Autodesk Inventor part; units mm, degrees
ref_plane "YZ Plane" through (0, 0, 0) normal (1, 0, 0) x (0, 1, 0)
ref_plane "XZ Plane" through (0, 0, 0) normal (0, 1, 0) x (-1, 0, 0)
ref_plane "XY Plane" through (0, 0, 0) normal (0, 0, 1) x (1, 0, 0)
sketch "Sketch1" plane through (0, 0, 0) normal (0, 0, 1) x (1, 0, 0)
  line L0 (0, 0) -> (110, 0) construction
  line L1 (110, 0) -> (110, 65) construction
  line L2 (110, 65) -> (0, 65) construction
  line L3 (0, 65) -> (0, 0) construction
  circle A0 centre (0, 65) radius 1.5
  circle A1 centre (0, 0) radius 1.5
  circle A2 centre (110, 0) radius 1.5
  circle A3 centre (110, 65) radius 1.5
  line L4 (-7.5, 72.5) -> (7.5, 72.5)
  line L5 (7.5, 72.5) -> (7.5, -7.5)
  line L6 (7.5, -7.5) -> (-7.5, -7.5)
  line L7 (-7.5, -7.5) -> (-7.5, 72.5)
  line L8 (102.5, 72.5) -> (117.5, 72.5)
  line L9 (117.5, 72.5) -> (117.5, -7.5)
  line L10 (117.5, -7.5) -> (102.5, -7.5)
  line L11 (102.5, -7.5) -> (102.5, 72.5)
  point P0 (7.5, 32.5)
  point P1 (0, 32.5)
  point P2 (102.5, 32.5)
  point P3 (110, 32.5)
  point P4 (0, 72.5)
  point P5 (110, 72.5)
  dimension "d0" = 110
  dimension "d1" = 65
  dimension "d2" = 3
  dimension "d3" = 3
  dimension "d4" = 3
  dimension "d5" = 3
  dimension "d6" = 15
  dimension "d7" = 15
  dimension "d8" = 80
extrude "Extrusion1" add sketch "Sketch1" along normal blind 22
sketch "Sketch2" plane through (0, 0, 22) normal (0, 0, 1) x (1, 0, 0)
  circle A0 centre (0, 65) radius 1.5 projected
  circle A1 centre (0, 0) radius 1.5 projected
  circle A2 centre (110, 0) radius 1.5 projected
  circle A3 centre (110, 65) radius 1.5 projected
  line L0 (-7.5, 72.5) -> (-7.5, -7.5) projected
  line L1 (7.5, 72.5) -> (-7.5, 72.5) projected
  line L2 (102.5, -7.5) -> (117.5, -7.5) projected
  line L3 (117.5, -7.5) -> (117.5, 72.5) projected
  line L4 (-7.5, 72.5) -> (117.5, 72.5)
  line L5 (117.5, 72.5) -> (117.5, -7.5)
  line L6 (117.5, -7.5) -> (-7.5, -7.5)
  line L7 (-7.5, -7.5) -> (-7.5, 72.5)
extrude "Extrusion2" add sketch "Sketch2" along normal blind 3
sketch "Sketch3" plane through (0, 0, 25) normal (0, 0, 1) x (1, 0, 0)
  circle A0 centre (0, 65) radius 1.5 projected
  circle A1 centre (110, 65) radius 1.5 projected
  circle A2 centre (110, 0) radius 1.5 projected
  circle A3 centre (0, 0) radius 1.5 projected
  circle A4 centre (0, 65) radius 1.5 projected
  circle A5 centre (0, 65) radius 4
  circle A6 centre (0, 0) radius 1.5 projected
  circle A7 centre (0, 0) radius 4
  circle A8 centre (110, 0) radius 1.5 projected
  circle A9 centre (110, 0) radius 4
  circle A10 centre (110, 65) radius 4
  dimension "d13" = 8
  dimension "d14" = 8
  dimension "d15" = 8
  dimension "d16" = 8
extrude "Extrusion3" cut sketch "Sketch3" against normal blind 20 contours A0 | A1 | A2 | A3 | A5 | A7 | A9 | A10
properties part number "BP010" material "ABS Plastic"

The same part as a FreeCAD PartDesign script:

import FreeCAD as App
import Part
import Sketcher

V = App.Vector


def add_polygon(sketch, points):
    """Adds a closed chain of lines whose ends are joined by coincident constraints."""
    first, n = sketch.GeometryCount, len(points)
    for a, b in zip(points, points[1:] + points[:1]):
        sketch.addGeometry(Part.LineSegment(App.Vector(*a, 0), App.Vector(*b, 0)), False)
    for i in range(n):
        sketch.addConstraint(Sketcher.Constraint("Coincident", first + i, 2, first + (i + 1) % n, 1))

doc = App.newDocument("Part")
body = doc.addObject("PartDesign::Body", "Body")
body.AllowCompound = True

# Sketch on XY plane
sketch1 = doc.addObject("Sketcher::SketchObject", "Sketch")
body.addObject(sketch1)
sketch1.AttachmentSupport = (doc.XY_Plane, [""])
sketch1.MapMode = "FlatFace"
add_polygon(sketch1, [(7.5, 72.5), (-7.5, 72.5), (-7.5, -7.5), (7.5, -7.5)])  # lines 0-3
sketch1.addGeometry(Part.Circle(V(0, 0, 0), V(0, 0, 1), 1.5), False)  # 4
sketch1.addGeometry(Part.Circle(V(0, 65, 0), V(0, 0, 1), 1.5), False)  # 5
add_polygon(sketch1, [(117.5, 72.5), (102.5, 72.5), (102.5, -7.5), (117.5, -7.5)])  # lines 6-9
sketch1.addGeometry(Part.Circle(V(110, 0, 0), V(0, 0, 1), 1.5), False)  # 10
sketch1.addGeometry(Part.Circle(V(110, 65, 0), V(0, 0, 1), 1.5), False)  # 11
sketch1.addConstraint(Sketcher.Constraint("Horizontal", 0))
sketch1.addConstraint(Sketcher.Constraint("Vertical", 1))
sketch1.addConstraint(Sketcher.Constraint("Horizontal", 2))
sketch1.addConstraint(Sketcher.Constraint("Vertical", 3))
sketch1.addConstraint(Sketcher.Constraint("Horizontal", 6))
sketch1.addConstraint(Sketcher.Constraint("Vertical", 7))
sketch1.addConstraint(Sketcher.Constraint("Horizontal", 8))
sketch1.addConstraint(Sketcher.Constraint("Vertical", 9))
sketch1.addConstraint(Sketcher.Constraint("Coincident", 4, 3, -1, 1))
sketch1.addConstraint(Sketcher.Constraint("Equal", 4, 5))
sketch1.addConstraint(Sketcher.Constraint("Equal", 5, 10))
sketch1.addConstraint(Sketcher.Constraint("Equal", 10, 11))
sketch1.addConstraint(Sketcher.Constraint("PointOnObject", 5, 3, -2))
sketch1.addConstraint(Sketcher.Constraint("PointOnObject", 10, 3, -1))
sketch1.addConstraint(Sketcher.Constraint("Horizontal", 5, 3, 11, 3))
sketch1.addConstraint(Sketcher.Constraint("Horizontal", 3, 2, 6, 2))
sketch1.addConstraint(Sketcher.Constraint("Horizontal", 2, 2, 7, 2))
sketch1.addConstraint(Sketcher.Constraint("Vertical", 10, 3, 11, 3))
sketch1.addConstraint(Sketcher.Constraint("Equal", 2, 6))
sketch1.addConstraint(Sketcher.Constraint("Diameter", 4, 3.0))
sketch1.addConstraint(Sketcher.Constraint("DistanceX", 0, 2, 0, 1, 15.0))
sketch1.addConstraint(Sketcher.Constraint("DistanceY", 1, 2, 1, 1, 80.0))
sketch1.addConstraint(Sketcher.Constraint("DistanceY", -1, 1, 5, 3, 65.0))
sketch1.addConstraint(Sketcher.Constraint("DistanceX", -1, 1, 10, 3, 110.0))
sketch1.addConstraint(Sketcher.Constraint("DistanceX", 0, 2, 6, 2, 110.0))
sketch1.addConstraint(Sketcher.Constraint("DistanceX", 0, 2, -1, 1, 7.5))
sketch1.addConstraint(Sketcher.Constraint("DistanceY", -1, 1, 0, 2, 72.5))
pad1 = doc.addObject("PartDesign::Pad", "Pad")
body.addObject(pad1)
pad1.Profile = sketch1
pad1.Length = 22

# Sketch on XY plane
sketch2 = doc.addObject("Sketcher::SketchObject", "Sketch001")
body.addObject(sketch2)
sketch2.AttachmentSupport = (doc.XY_Plane, [""])
sketch2.MapMode = "FlatFace"
sketch2.AttachmentOffset = App.Placement(V(0, 0, 22), App.Rotation())
add_polygon(sketch2, [(117.5, 72.5), (-7.5, 72.5), (-7.5, -7.5), (117.5, -7.5)])  # lines 0-3
sketch2.addGeometry(Part.Circle(V(0, 0, 0), V(0, 0, 1), 1.5), False)  # 4
sketch2.addGeometry(Part.Circle(V(110, 0, 0), V(0, 0, 1), 1.5), False)  # 5
sketch2.addGeometry(Part.Circle(V(0, 65, 0), V(0, 0, 1), 1.5), False)  # 6
sketch2.addGeometry(Part.Circle(V(110, 65, 0), V(0, 0, 1), 1.5), False)  # 7
sketch2.addConstraint(Sketcher.Constraint("Horizontal", 0))
sketch2.addConstraint(Sketcher.Constraint("Vertical", 1))
sketch2.addConstraint(Sketcher.Constraint("Horizontal", 2))
sketch2.addConstraint(Sketcher.Constraint("Vertical", 3))
sketch2.addConstraint(Sketcher.Constraint("Coincident", 4, 3, -1, 1))
sketch2.addConstraint(Sketcher.Constraint("Equal", 4, 5))
sketch2.addConstraint(Sketcher.Constraint("Equal", 5, 6))
sketch2.addConstraint(Sketcher.Constraint("Equal", 6, 7))
sketch2.addConstraint(Sketcher.Constraint("PointOnObject", 5, 3, -1))
sketch2.addConstraint(Sketcher.Constraint("PointOnObject", 6, 3, -2))
sketch2.addConstraint(Sketcher.Constraint("Horizontal", 6, 3, 7, 3))
sketch2.addConstraint(Sketcher.Constraint("Vertical", 5, 3, 7, 3))
sketch2.addConstraint(Sketcher.Constraint("Diameter", 4, 3.0))
sketch2.addConstraint(Sketcher.Constraint("DistanceX", 0, 2, 0, 1, 125.0))
sketch2.addConstraint(Sketcher.Constraint("DistanceY", 1, 2, 1, 1, 80.0))
sketch2.addConstraint(Sketcher.Constraint("DistanceX", -1, 1, 5, 3, 110.0))
sketch2.addConstraint(Sketcher.Constraint("DistanceY", -1, 1, 6, 3, 65.0))
sketch2.addConstraint(Sketcher.Constraint("DistanceX", 0, 2, -1, 1, 7.5))
sketch2.addConstraint(Sketcher.Constraint("DistanceY", -1, 1, 0, 2, 72.5))
pad2 = doc.addObject("PartDesign::Pad", "Pad001")
body.addObject(pad2)
pad2.Profile = sketch2
pad2.Length = 3

# Sketch on XY plane
sketch3 = doc.addObject("Sketcher::SketchObject", "Sketch002")
body.addObject(sketch3)
sketch3.AttachmentSupport = (doc.XY_Plane, [""])
sketch3.MapMode = "FlatFace"
sketch3.AttachmentOffset = App.Placement(V(0, 0, 25), App.Rotation())
sketch3.addGeometry(Part.Circle(V(0, 65, 0), V(0, 0, 1), 4), False)
sketch3.addGeometry(Part.Circle(V(110, 65, 0), V(0, 0, 1), 4), False)
sketch3.addGeometry(Part.Circle(V(110, 0, 0), V(0, 0, 1), 4), False)
sketch3.addGeometry(Part.Circle(V(0, 0, 0), V(0, 0, 1), 4), False)
sketch3.addConstraint(Sketcher.Constraint("Coincident", 3, 3, -1, 1))
sketch3.addConstraint(Sketcher.Constraint("Equal", 0, 1))
sketch3.addConstraint(Sketcher.Constraint("Equal", 1, 2))
sketch3.addConstraint(Sketcher.Constraint("Equal", 2, 3))
sketch3.addConstraint(Sketcher.Constraint("PointOnObject", 0, 3, -2))
sketch3.addConstraint(Sketcher.Constraint("PointOnObject", 2, 3, -1))
sketch3.addConstraint(Sketcher.Constraint("Horizontal", 0, 3, 1, 3))
sketch3.addConstraint(Sketcher.Constraint("Vertical", 1, 3, 2, 3))
sketch3.addConstraint(Sketcher.Constraint("Diameter", 0, 8.0))
sketch3.addConstraint(Sketcher.Constraint("DistanceY", -1, 1, 0, 3, 65.0))
sketch3.addConstraint(Sketcher.Constraint("DistanceX", -1, 1, 1, 3, 110.0))
pocket1 = doc.addObject("PartDesign::Pocket", "Pocket")
body.addObject(pocket1)
pocket1.Profile = sketch3
pocket1.Length = 20

doc.recompute()
